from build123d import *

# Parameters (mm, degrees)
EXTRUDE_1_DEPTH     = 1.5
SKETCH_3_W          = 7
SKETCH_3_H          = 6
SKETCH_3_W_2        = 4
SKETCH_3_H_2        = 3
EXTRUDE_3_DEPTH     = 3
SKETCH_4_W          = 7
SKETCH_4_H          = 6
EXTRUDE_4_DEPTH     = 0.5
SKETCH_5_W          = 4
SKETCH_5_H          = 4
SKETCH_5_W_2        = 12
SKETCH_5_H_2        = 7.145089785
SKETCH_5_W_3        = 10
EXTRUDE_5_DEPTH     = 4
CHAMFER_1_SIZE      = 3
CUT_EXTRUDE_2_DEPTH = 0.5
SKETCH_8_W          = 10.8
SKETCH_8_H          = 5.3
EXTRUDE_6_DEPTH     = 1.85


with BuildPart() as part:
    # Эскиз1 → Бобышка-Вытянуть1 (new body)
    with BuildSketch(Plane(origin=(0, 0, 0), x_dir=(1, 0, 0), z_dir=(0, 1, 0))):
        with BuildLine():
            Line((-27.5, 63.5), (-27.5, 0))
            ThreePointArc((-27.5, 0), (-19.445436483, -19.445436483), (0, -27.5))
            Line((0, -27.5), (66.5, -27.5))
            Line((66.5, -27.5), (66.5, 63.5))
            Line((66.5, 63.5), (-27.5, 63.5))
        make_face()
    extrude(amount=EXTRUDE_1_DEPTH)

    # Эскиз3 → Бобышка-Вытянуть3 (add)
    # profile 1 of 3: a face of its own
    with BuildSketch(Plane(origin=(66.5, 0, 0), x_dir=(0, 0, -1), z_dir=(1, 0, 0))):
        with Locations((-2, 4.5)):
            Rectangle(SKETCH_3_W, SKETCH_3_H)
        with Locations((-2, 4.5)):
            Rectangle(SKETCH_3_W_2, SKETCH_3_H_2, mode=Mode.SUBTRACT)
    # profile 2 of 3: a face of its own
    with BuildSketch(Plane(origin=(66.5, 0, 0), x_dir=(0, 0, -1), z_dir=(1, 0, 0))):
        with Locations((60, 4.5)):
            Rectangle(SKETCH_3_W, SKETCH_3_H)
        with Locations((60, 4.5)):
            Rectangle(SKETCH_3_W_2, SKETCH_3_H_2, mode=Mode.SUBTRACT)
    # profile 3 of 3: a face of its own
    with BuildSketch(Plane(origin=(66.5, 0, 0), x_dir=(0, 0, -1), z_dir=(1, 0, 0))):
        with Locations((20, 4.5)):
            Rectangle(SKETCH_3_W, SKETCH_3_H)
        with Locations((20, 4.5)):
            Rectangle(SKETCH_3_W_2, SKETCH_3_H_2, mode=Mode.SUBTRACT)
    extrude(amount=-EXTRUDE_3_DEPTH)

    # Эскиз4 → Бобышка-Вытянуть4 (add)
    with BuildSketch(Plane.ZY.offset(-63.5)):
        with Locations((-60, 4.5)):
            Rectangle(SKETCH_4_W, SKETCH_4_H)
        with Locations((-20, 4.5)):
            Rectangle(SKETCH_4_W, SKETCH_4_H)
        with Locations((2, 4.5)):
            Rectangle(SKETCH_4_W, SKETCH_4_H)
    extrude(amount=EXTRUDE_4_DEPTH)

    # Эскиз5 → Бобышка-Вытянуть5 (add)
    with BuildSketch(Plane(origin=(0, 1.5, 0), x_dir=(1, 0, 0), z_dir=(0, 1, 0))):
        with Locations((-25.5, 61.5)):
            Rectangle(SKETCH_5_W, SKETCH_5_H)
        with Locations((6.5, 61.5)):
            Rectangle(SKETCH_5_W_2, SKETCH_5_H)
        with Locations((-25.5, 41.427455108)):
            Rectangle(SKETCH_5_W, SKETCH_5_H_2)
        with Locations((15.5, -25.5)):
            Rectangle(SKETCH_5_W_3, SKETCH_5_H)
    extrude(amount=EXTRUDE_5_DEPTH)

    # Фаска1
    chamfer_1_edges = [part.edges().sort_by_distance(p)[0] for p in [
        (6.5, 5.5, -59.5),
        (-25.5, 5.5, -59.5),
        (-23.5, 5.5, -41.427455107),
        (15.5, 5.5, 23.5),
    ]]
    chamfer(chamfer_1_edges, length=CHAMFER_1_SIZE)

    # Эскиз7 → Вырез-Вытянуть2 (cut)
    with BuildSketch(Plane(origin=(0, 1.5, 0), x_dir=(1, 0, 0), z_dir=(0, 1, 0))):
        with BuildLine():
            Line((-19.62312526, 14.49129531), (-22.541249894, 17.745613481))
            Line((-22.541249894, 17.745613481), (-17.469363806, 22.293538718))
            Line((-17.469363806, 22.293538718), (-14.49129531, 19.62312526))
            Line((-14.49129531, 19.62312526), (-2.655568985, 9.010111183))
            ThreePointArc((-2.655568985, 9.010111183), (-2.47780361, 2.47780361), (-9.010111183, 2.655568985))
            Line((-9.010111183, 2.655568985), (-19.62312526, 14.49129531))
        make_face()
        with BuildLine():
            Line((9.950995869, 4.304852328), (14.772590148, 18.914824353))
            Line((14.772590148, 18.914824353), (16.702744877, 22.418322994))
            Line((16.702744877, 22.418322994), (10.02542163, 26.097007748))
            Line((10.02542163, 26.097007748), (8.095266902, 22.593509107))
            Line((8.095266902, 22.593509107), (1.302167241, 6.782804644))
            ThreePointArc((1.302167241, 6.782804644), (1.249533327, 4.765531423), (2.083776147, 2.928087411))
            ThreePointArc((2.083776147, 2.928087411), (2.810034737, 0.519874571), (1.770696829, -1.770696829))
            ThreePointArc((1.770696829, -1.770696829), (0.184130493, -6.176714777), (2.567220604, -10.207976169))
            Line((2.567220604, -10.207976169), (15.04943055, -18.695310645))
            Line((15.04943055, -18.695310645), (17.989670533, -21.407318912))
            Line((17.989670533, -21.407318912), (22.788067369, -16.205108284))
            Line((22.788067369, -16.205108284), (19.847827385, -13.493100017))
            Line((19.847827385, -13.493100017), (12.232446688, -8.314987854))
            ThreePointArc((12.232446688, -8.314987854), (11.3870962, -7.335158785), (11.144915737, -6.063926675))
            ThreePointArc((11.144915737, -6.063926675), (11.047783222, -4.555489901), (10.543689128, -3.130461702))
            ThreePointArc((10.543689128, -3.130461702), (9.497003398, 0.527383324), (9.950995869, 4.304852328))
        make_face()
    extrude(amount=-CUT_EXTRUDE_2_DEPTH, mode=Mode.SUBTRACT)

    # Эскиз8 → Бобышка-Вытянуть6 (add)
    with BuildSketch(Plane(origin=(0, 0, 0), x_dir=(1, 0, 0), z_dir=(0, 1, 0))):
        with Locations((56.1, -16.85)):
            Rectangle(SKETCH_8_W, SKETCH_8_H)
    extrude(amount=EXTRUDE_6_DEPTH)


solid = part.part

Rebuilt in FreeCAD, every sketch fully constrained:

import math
import FreeCAD as App
import Part
import Sketcher

V = App.Vector
Q = App.Units.Quantity


def edges_at(feature, points):
    """Names of the edges that pass closest to the given points."""
    edges = feature.Shape.Edges
    near = lambda p: min(range(len(edges)), key=lambda i: edges[i].distToShape(Part.Vertex(*p))[0])
    return sorted({f"Edge{near(p) + 1}" for p in points})


def add_polygon(sketch, points):
    """Adds a closed chain of lines whose ends are joined by coincident constraints."""
    first, n = sketch.GeometryCount, len(points)
    for a, b in zip(points, points[1:] + points[:1]):
        sketch.addGeometry(Part.LineSegment(App.Vector(*a, 0), App.Vector(*b, 0)), False)
    for i in range(n):
        sketch.addConstraint(Sketcher.Constraint("Coincident", first + i, 2, first + (i + 1) % n, 1))

doc = App.newDocument("Part")
params = doc.addObject("Spreadsheet::Sheet", "Params")
for row, (alias, value) in enumerate([
    ("sketch1_radius", "27.5 mm"),
    ("sketch1_width", "94 mm"),
    ("sketch1_height", "91 mm"),
    ("pad1_length", "1.5 mm"),
    ("sketch2_width", "6 mm"),
    ("sketch2_width2", "3 mm"),
    ("sketch2_height", "7 mm"),
    ("sketch2_height2", "4 mm"),
    ("pad2_length", "3 mm"),
    ("sketch3_width", "6 mm"),
    ("sketch3_height", "7 mm"),
    ("pad3_length", "0.5 mm"),
    ("sketch4_width", "4 mm"),
    ("sketch4_width2", "12 mm"),
    ("sketch4_width3", "10 mm"),
    ("pad4_length", "4 mm"),
    ("chamfer_size", "3 mm"),
    ("sketch5_radius", "4.5 mm"),
    ("sketch5_radius2", "5.5 mm"),
    ("sketch5_radius3", "2.5 mm"),
    ("sketch5_length", "4 mm"),
    ("pocket1_length", "0.5 mm"),
    ("sketch6_width", "10.8 mm"),
    ("sketch6_height", "5.3 mm"),
    ("pad5_length", "1.85 mm"),
], start=1):
    params.set(f"A{row}", alias)
    params.set(f"B{row}", "=" + value)
    params.setAlias(f"B{row}", alias)

body = doc.addObject("PartDesign::Body", "Body")

# Sketch on XZ plane
sketch1 = doc.addObject("Sketcher::SketchObject", "Sketch")
body.addObject(sketch1)
sketch1.AttachmentSupport = (doc.XZ_Plane, [""])
sketch1.MapMode = "FlatFace"
sketch1.addGeometry([
    Part.LineSegment(V(-28, -64, 0), V(-28, 0, 0)),  # 0
    Part.ArcOfCircle(Part.Circle(V(0, 0, 0), V(0, 0, 1), 27), math.radians(90), math.radians(180)),  # 1
    Part.LineSegment(V(0, 28, 0), V(66, 28, 0)),  # 2
    Part.LineSegment(V(66, 28, 0), V(66, -64, 0)),  # 3
    Part.LineSegment(V(66, -64, 0), V(-28, -64, 0)),  # 4
], False)
sketch1.addConstraint([
    Sketcher.Constraint("Tangent", 0, 2, 1, 2),
    Sketcher.Constraint("Tangent", 1, 1, 2, 1),
    Sketcher.Constraint("Coincident", 2, 2, 3, 1),
    Sketcher.Constraint("Coincident", 3, 2, 4, 1),
    Sketcher.Constraint("Coincident", 4, 2, 0, 1),
    Sketcher.Constraint("Vertical", 0),
    Sketcher.Constraint("Horizontal", 2),
    Sketcher.Constraint("Vertical", 3),
    Sketcher.Constraint("Horizontal", 4),
    Sketcher.Constraint("Coincident", 1, 3, -1, 1),
    Sketcher.Constraint("Radius", 1, Q("27.5 mm")),
    Sketcher.Constraint("DistanceX", 4, 2, 4, 1, Q("94 mm")),
    Sketcher.Constraint("DistanceY", 3, 2, 3, 1, Q("91 mm")),
])
sketch1.setExpression("Constraints[10]", "Params.sketch1_radius")
sketch1.setExpression("Constraints[11]", "Params.sketch1_width")
sketch1.setExpression("Constraints[12]", "Params.sketch1_height")
pad1 = doc.addObject("PartDesign::Pad", "Pad")
body.addObject(pad1)
pad1.Profile = sketch1
pad1.setExpression("Length", "Params.pad1_length")
pad1.Reversed = True

# Sketch on YZ plane
sketch2 = doc.addObject("Sketcher::SketchObject", "Sketch001")
body.addObject(sketch2)
sketch2.AttachmentSupport = (doc.YZ_Plane, [""])
sketch2.MapMode = "FlatFace"
sketch2.AttachmentOffset = App.Placement(V(0, 0, 66.5), App.Rotation())
add_polygon(sketch2, [(7.5, 5.5), (1.5, 5.5), (1.5, -1.5), (7.5, -1.5)])  # lines 0-3
add_polygon(sketch2, [(3, 0), (3, 4), (6, 4), (6, 0)])  # lines 4-7
add_polygon(sketch2, [(7.5, -56.5), (1.5, -56.5), (1.5, -63.5), (7.5, -63.5)])  # lines 8-11
add_polygon(sketch2, [(3, -62), (3, -58), (6, -58), (6, -62)])  # lines 12-15
add_polygon(sketch2, [(7.5, -16.5), (1.5, -16.5), (1.5, -23.5), (7.5, -23.5)])  # lines 16-19
add_polygon(sketch2, [(3, -22), (3, -18), (6, -18), (6, -22)])  # lines 20-23
sketch2.addConstraint([
    Sketcher.Constraint("Horizontal", 0),
    Sketcher.Constraint("Vertical", 1),
    Sketcher.Constraint("Horizontal", 2),
    Sketcher.Constraint("Vertical", 3),
    Sketcher.Constraint("Vertical", 4),
    Sketcher.Constraint("Horizontal", 5),
    Sketcher.Constraint("Vertical", 6),
    Sketcher.Constraint("Horizontal", 7),
    Sketcher.Constraint("Horizontal", 8),
    Sketcher.Constraint("Vertical", 9),
    Sketcher.Constraint("Horizontal", 10),
    Sketcher.Constraint("Vertical", 11),
    Sketcher.Constraint("Vertical", 12),
    Sketcher.Constraint("Horizontal", 13),
    Sketcher.Constraint("Vertical", 14),
    Sketcher.Constraint("Horizontal", 15),
    Sketcher.Constraint("Horizontal", 16),
    Sketcher.Constraint("Vertical", 17),
    Sketcher.Constraint("Horizontal", 18),
    Sketcher.Constraint("Vertical", 19),
    Sketcher.Constraint("Vertical", 20),
    Sketcher.Constraint("Horizontal", 21),
    Sketcher.Constraint("Vertical", 22),
    Sketcher.Constraint("Horizontal", 23),
    Sketcher.Constraint("PointOnObject", 6, 2, -1),
    Sketcher.Constraint("Vertical", 1, 2, 8, 2),
    Sketcher.Constraint("Vertical", 3, 2, 10, 2),
    Sketcher.Constraint("Vertical", 7, 2, 12, 2),
    Sketcher.Constraint("Vertical", 6, 2, 13, 2),
    Sketcher.Constraint("Vertical", 9, 2, 16, 2),
    Sketcher.Constraint("Vertical", 11, 2, 18, 2),
    Sketcher.Constraint("Vertical", 15, 2, 20, 2),
    Sketcher.Constraint("Vertical", 14, 2, 21, 2),
    Sketcher.Constraint("Equal", 3, 9),
    Sketcher.Constraint("Equal", 6, 12),
    Sketcher.Constraint("Equal", 11, 17),
    Sketcher.Constraint("Equal", 14, 20),
    Sketcher.Constraint("DistanceX", 0, 2, 0, 1, Q("6 mm")),
    Sketcher.Constraint("DistanceX", 5, 1, 5, 2, Q("3 mm")),
    Sketcher.Constraint("DistanceY", 1, 2, 1, 1, Q("7 mm")),
    Sketcher.Constraint("DistanceY", 4, 1, 4, 2, Q("4 mm")),
    Sketcher.Constraint("DistanceX", -1, 1, 4, 2, Q("3 mm")),
    Sketcher.Constraint("DistanceY", 12, 2, -1, 1, Q("58 mm")),
    Sketcher.Constraint("DistanceY", 20, 2, -1, 1, Q("18 mm")),
    Sketcher.Constraint("DistanceY", 8, 2, 1, 2, Q("55 mm")),
    Sketcher.Constraint("DistanceY", 16, 2, 1, 2, Q("15 mm")),
    Sketcher.Constraint("DistanceX", -1, 1, 0, 2, Q("1.5 mm")),
    Sketcher.Constraint("DistanceY", -1, 1, 0, 2, Q("5.5 mm")),
])
sketch2.setExpression("Constraints[61]", "Params.sketch2_width")
sketch2.setExpression("Constraints[62]", "Params.sketch2_width2")
sketch2.setExpression("Constraints[63]", "Params.sketch2_height")
sketch2.setExpression("Constraints[64]", "Params.sketch2_height2")
pad2 = doc.addObject("PartDesign::Pad", "Pad001")
body.addObject(pad2)
pad2.Profile = sketch2
pad2.setExpression("Length", "Params.pad2_length")
pad2.Reversed = True

# Sketch on YZ plane
sketch3 = doc.addObject("Sketcher::SketchObject", "Sketch002")
body.addObject(sketch3)
sketch3.AttachmentSupport = (doc.YZ_Plane, [""])
sketch3.MapMode = "FlatFace"
sketch3.AttachmentOffset = App.Placement(V(0, 0, 63.5), App.Rotation())
add_polygon(sketch3, [(8, -64), (2, -64), (2, -56), (8, -56)])  # lines 0-3
add_polygon(sketch3, [(8, -24), (2, -24), (2, -16), (8, -16)])  # lines 4-7
add_polygon(sketch3, [(8, -2), (2, -2), (2, 6), (8, 6)])  # lines 8-11
sketch3.addConstraint([
    Sketcher.Constraint("Horizontal", 0),
    Sketcher.Constraint("Vertical", 1),
    Sketcher.Constraint("Horizontal", 2),
    Sketcher.Constraint("Vertical", 3),
    Sketcher.Constraint("Horizontal", 4),
    Sketcher.Constraint("Vertical", 5),
    Sketcher.Constraint("Horizontal", 6),
    Sketcher.Constraint("Vertical", 7),
    Sketcher.Constraint("Horizontal", 8),
    Sketcher.Constraint("Vertical", 9),
    Sketcher.Constraint("Horizontal", 10),
    Sketcher.Constraint("Vertical", 11),
    Sketcher.Constraint("Vertical", 1, 2, 4, 2),
    Sketcher.Constraint("Vertical", 3, 2, 6, 2),
    Sketcher.Constraint("Vertical", 5, 2, 8, 2),
    Sketcher.Constraint("Vertical", 7, 2, 10, 2),
    Sketcher.Constraint("Equal", 3, 5),
    Sketcher.Constraint("Equal", 7, 9),
    Sketcher.Constraint("DistanceX", 0, 2, 0, 1, Q("6 mm")),
    Sketcher.Constraint("DistanceY", 1, 1, 1, 2, Q("7 mm")),
    Sketcher.Constraint("DistanceY", 1, 2, 4, 2, Q("33 mm")),
    Sketcher.Constraint("DistanceY", 5, 2, 8, 2, Q("15 mm")),
    Sketcher.Constraint("DistanceX", -1, 1, 0, 2, Q("1.5 mm")),
    Sketcher.Constraint("DistanceY", 0, 2, -1, 1, Q("63.5 mm")),
])
sketch3.setExpression("Constraints[30]", "Params.sketch3_width")
sketch3.setExpression("Constraints[31]", "Params.sketch3_height")
pad3 = doc.addObject("PartDesign::Pad", "Pad002")
body.addObject(pad3)
pad3.Profile = sketch3
pad3.setExpression("Length", "Params.pad3_length")
pad3.Reversed = True

# Sketch on XZ plane
sketch4 = doc.addObject("Sketcher::SketchObject", "Sketch003")
body.addObject(sketch4)
sketch4.AttachmentSupport = (doc.XZ_Plane, [""])
sketch4.MapMode = "FlatFace"
sketch4.AttachmentOffset = App.Placement(V(0, 0, -1.5), App.Rotation())
add_polygon(sketch4, [(-27.5, -63.5), (-27.5, -59.5), (-23.5, -59.5), (-23.5, -63.5)])  # lines 0-3
add_polygon(sketch4, [(0.5, -63.5), (0.5, -59.5), (12.5, -59.5), (12.5, -63.5)])  # lines 4-7
add_polygon(sketch4, [(-27.5, -45), (-27.5, -37.9), (-23.5, -37.9), (-23.5, -45)])  # lines 8-11
add_polygon(sketch4, [(10.5, 23.5), (10.5, 27.5), (20.5, 27.5), (20.5, 23.5)])  # lines 12-15
sketch4.addConstraint([
    Sketcher.Constraint("Vertical", 0),
    Sketcher.Constraint("Horizontal", 1),
    Sketcher.Constraint("Vertical", 2),
    Sketcher.Constraint("Horizontal", 3),
    Sketcher.Constraint("Vertical", 4),
    Sketcher.Constraint("Horizontal", 5),
    Sketcher.Constraint("Vertical", 6),
    Sketcher.Constraint("Horizontal", 7),
    Sketcher.Constraint("Vertical", 8),
    Sketcher.Constraint("Horizontal", 9),
    Sketcher.Constraint("Vertical", 10),
    Sketcher.Constraint("Horizontal", 11),
    Sketcher.Constraint("Vertical", 12),
    Sketcher.Constraint("Horizontal", 13),
    Sketcher.Constraint("Vertical", 14),
    Sketcher.Constraint("Horizontal", 15),
    Sketcher.Constraint("Horizontal", 1, 2, 4, 2),
    Sketcher.Constraint("Horizontal", 3, 2, 6, 2),
    Sketcher.Constraint("Vertical", 3, 2, 8, 2),
    Sketcher.Constraint("Vertical", 2, 2, 9, 2),
    Sketcher.Constraint("Equal", 11, 0),
    Sketcher.Constraint("Equal", 6, 12),
    Sketcher.Constraint("DistanceX", 1, 1, 1, 2, Q("4 mm")),
    Sketcher.Constraint("DistanceX", 5, 1, 5, 2, Q("12 mm")),
    Sketcher.Constraint("DistanceX", 13, 1, 13, 2, Q("10 mm")),
    Sketcher.Constraint("DistanceY", 10, 2, -1, 1, Q("45 mm")),
    Sketcher.Constraint("DistanceX", 1, 2, 4, 2, Q("24 mm")),
    Sketcher.Constraint("DistanceX", 9, 2, 12, 2, Q("34 mm")),
    Sketcher.Constraint("DistanceY", 5, 2, 12, 2, Q("87 mm")),
    Sketcher.Constraint("DistanceX", 0, 2, -1, 1, Q("27.5 mm")),
    Sketcher.Constraint("DistanceY", 0, 2, -1, 1, Q("59.5 mm")),
    Sketcher.Constraint("DistanceY", 8, 1, 8, 2, Q("7.14509 mm")),
])
sketch4.setExpression("Constraints[38]", "Params.sketch4_width")
sketch4.setExpression("Constraints[39]", "Params.sketch4_width2")
sketch4.setExpression("Constraints[40]", "Params.sketch4_width3")
pad4 = doc.addObject("PartDesign::Pad", "Pad003")
body.addObject(pad4)
pad4.Profile = sketch4
pad4.setExpression("Length", "Params.pad4_length")
pad4.Reversed = True
doc.recompute()

chamfer = doc.addObject("PartDesign::Chamfer", "Chamfer")
body.addObject(chamfer)
chamfer.Base = (pad4, edges_at(pad4, [
    (6.5, 5.5, -59.5),
    (-25.5, 5.5, -59.5),
    (-23.5, 5.5, -41.427),
    (15.5, 5.5, 23.5),
]))
chamfer.setExpression("Size", "Params.chamfer_size")

# Sketch on XZ plane
sketch5 = doc.addObject("Sketcher::SketchObject", "Sketch004")
body.addObject(sketch5)
sketch5.AttachmentSupport = (doc.XZ_Plane, [""])
sketch5.MapMode = "FlatFace"
sketch5.AttachmentOffset = App.Placement(V(0, 0, -1.5), App.Rotation())
sketch5.addGeometry([
    Part.LineSegment(V(-22.5, -17.7, 0), V(-19.6, -14.5, 0)),  # 0
    Part.LineSegment(V(-19.6, -14.5, 0), V(-9, -2.7, 0)),  # 1
    Part.ArcOfCircle(Part.Circle(V(-5.7, -5.7, 0), V(0, 0, 1), 4.5), math.radians(-48), math.radians(138)),  # 2
    Part.LineSegment(V(-2.7, -9, 0), V(-14.5, -19.6, 0)),  # 3
    Part.LineSegment(V(-14.5, -19.6, 0), V(-17.5, -22.3, 0)),  # 4
    Part.LineSegment(V(-17.5, -22.3, 0), V(-22.5, -17.7, 0)),  # 5
    Part.LineSegment(V(10, -4.3, 0), V(14.8, -18.9, 0)),  # 6
    Part.LineSegment(V(14.8, -18.9, 0), V(16.7, -22.4, 0)),  # 7
    Part.LineSegment(V(16.7, -22.4, 0), V(10, -26.1, 0)),  # 8
    Part.LineSegment(V(10, -26.1, 0), V(8.1, -22.6, 0)),  # 9
    Part.LineSegment(V(8.1, -22.6, 0), V(1.3, -6.8, 0)),  # 10
    Part.ArcOfCircle(Part.Circle(V(5.7, -5.7, 0), V(0, 0, 1), 4.5), math.radians(143), math.radians(194)),  # 11
    Part.ArcOfCircle(Part.Circle(V(-0.8, -0.8, 0), V(0, 0, 1), 3.6), math.radians(-37), math.radians(45)),  # 12
    Part.ArcOfCircle(Part.Circle(V(5.7, 5.7, 0), V(0, 0, 1), 5.5), math.radians(124), math.radians(225)),  # 13
    Part.LineSegment(V(2.6, 10.2, 0), V(15, 18.7, 0)),  # 14
    Part.LineSegment(V(15, 18.7, 0), V(18, 21.4, 0)),  # 15
    Part.LineSegment(V(18, 21.4, 0), V(22.8, 16.2, 0)),  # 16
    Part.LineSegment(V(22.8, 16.2, 0), V(19.8, 13.5, 0)),  # 17
    Part.LineSegment(V(19.8, 13.5, 0), V(12.2, 8.3, 0)),  # 18
    Part.ArcOfCircle(Part.Circle(V(13.6, 6.2, 0), V(0, 0, 1), 2.5), math.radians(124), math.radians(184)),  # 19
    Part.ArcOfCircle(Part.Circle(V(5.7, 5.7, 0), V(0, 0, 1), 5.5), math.radians(-27), math.radians(4)),  # 20
    Part.ArcOfCircle(Part.Circle(V(19.1, -1.3, 0), V(0, 0, 1), 9.6), math.radians(153), math.radians(198)),  # 21
], False)
sketch5.addConstraint([
    Sketcher.Constraint("Coincident", 0, 2, 1, 1),
    Sketcher.Constraint("Tangent", 1, 2, 2, 2),
    Sketcher.Constraint("Tangent", 2, 1, 3, 1),
    Sketcher.Constraint("Coincident", 3, 2, 4, 1),
    Sketcher.Constraint("Coincident", 4, 2, 5, 1),
    Sketcher.Constraint("Coincident", 5, 2, 0, 1),
    Sketcher.Constraint("Coincident", 6, 2, 7, 1),
    Sketcher.Constraint("Coincident", 7, 2, 8, 1),
    Sketcher.Constraint("Coincident", 8, 2, 9, 1),
    Sketcher.Constraint("Coincident", 9, 2, 10, 1),
    Sketcher.Constraint("Coincident", 10, 2, 11, 2),
    Sketcher.Constraint("Tangent", 11, 1, 12, 1),
    Sketcher.Constraint("Tangent", 12, 2, 13, 2),
    Sketcher.Constraint("Tangent", 13, 1, 14, 1),
    Sketcher.Constraint("Coincident", 14, 2, 15, 1),
    Sketcher.Constraint("Coincident", 15, 2, 16, 1),
    Sketcher.Constraint("Coincident", 16, 2, 17, 1),
    Sketcher.Constraint("Coincident", 17, 2, 18, 1),
    Sketcher.Constraint("Tangent", 18, 2, 19, 1),
    Sketcher.Constraint("Tangent", 19, 2, 20, 2),
    Sketcher.Constraint("Tangent", 20, 1, 21, 1),
    Sketcher.Constraint("Tangent", 21, 2, 6, 1),
    Sketcher.Constraint("Coincident", 20, 3, 13, 3),
    Sketcher.Constraint("Equal", 2, 11),
    Sketcher.Constraint("Equal", 13, 20),
    Sketcher.Constraint("Symmetric", 2, 3, 13, 3, -1, 1),
    Sketcher.Constraint("Symmetric", 2, 3, 11, 3, -2),
    Sketcher.Constraint("Parallel", 0, 1),
    Sketcher.Constraint("Parallel", 3, 4),
    Sketcher.Constraint("Perpendicular", 1, 5),
    Sketcher.Constraint("Perpendicular", 7, 8),
    Sketcher.Constraint("Perpendicular", 8, 9),
    Sketcher.Constraint("Perpendicular", 15, 16),
    Sketcher.Constraint("Perpendicular", 16, 17),
    Sketcher.Constraint("Parallel", 14, 18),
    Sketcher.Constraint("Equal", 1, 3),
    Sketcher.Constraint("Equal", 4, 7),
    Sketcher.Constraint("Equal", 7, 9),
    Sketcher.Constraint("Equal", 9, 15),
    Sketcher.Constraint("Equal", 15, 17),
    Sketcher.Constraint("Radius", 2, Q("4.5 mm")),
    Sketcher.Constraint("Radius", 13, Q("5.5 mm")),
    Sketcher.Constraint("Radius", 19, Q("2.5 mm")),
    Sketcher.Constraint("Distance", 4, Q("4 mm")),
    Sketcher.Constraint("Radius", 12, Q("3.57553 mm")),
    Sketcher.Constraint("Radius", 21, Q("9.615392 mm")),
    Sketcher.Constraint("DistanceY", -1, 1, 17, 2, Q("13.4931 mm")),
    Sketcher.Constraint("DistanceX", 2, 3, 12, 3, Q("4.9022 mm")),
    Sketcher.Constraint("DistanceY", 2, 3, 12, 3, Q("4.9022 mm")),
    Sketcher.Constraint("DistanceX", 6, 2, 21, 3, Q("4.309401 mm")),
    Sketcher.Constraint("DistanceY", 7, 2, 6, 2, Q("3.503499 mm")),
    Sketcher.Constraint("DistanceY", 19, 2, 19, 3, Q("0.183701 mm")),
    Sketcher.Constraint("Distance", 10, Q("17.208271 mm")),
    Sketcher.Constraint("Distance", 16, Q("7.07726 mm")),
    Sketcher.Constraint("DistanceX", -1, 1, 21, 3, Q("19.081991 mm")),
    Sketcher.Constraint("DistanceX", 1, 2, -1, 1, Q("9.010111 mm")),
    Sketcher.Constraint("DistanceX", 2, 1, -1, 1, Q("2.655569 mm")),
    Sketcher.Constraint("DistanceY", 4, 2, -1, 1, Q("22.293539 mm")),
    Sketcher.Constraint("DistanceX", -1, 1, 8, 2, Q("10.025422 mm")),
    Sketcher.Constraint("DistanceY", 9, 2, -1, 1, Q("22.593509 mm")),
    Sketcher.Constraint("DistanceX", -1, 1, 13, 1, Q("2.567221 mm")),
])
sketch5.setExpression("Constraints[40]", "Params.sketch5_radius")
sketch5.setExpression("Constraints[41]", "Params.sketch5_radius2")
sketch5.setExpression("Constraints[42]", "Params.sketch5_radius3")
sketch5.setExpression("Constraints[43]", "Params.sketch5_length")
pocket1 = doc.addObject("PartDesign::Pocket", "Pocket")
body.addObject(pocket1)
pocket1.Profile = sketch5
pocket1.setExpression("Length", "Params.pocket1_length")
pocket1.Reversed = True

# Sketch on XZ plane
sketch6 = doc.addObject("Sketcher::SketchObject", "Sketch005")
body.addObject(sketch6)
sketch6.AttachmentSupport = (doc.XZ_Plane, [""])
sketch6.MapMode = "FlatFace"
add_polygon(sketch6, [(51, 14), (51, 20), (62, 20), (62, 14)])  # lines 0-3
sketch6.addConstraint([
    Sketcher.Constraint("Vertical", 0),
    Sketcher.Constraint("Horizontal", 1),
    Sketcher.Constraint("Vertical", 2),
    Sketcher.Constraint("Horizontal", 3),
    Sketcher.Constraint("DistanceX", 1, 1, 1, 2, Q("10.8 mm")),
    Sketcher.Constraint("DistanceY", 0, 1, 0, 2, Q("5.3 mm")),
    Sketcher.Constraint("DistanceX", -1, 1, 0, 2, Q("50.7 mm")),
    Sketcher.Constraint("DistanceY", -1, 1, 0, 2, Q("19.5 mm")),
])
sketch6.setExpression("Constraints[8]", "Params.sketch6_width")
sketch6.setExpression("Constraints[9]", "Params.sketch6_height")
pad5 = doc.addObject("PartDesign::Pad", "Pad004")
body.addObject(pad5)
pad5.Profile = sketch6
pad5.setExpression("Length", "Params.pad5_length")
pad5.Reversed = True

doc.recompute()
